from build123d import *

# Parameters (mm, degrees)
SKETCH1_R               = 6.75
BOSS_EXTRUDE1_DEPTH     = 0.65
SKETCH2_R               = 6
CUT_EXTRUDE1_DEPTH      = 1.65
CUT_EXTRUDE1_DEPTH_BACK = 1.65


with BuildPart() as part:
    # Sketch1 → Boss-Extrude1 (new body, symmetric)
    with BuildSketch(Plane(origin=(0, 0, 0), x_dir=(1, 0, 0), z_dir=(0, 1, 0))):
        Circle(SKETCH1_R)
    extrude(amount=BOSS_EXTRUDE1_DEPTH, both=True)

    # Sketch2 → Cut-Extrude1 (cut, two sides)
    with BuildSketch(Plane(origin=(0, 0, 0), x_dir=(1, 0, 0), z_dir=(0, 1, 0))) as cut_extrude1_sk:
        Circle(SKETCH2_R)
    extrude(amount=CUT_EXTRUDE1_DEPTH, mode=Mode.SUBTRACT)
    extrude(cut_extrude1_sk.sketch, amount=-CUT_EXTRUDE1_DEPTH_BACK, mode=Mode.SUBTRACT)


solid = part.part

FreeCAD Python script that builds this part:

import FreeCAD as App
import Part
import Sketcher

doc = App.newDocument("Part")
body = doc.addObject("PartDesign::Body", "Body")

# Sketch on XZ plane
sketch1 = body.newObject("Sketcher::SketchObject", "Sketch")
sketch1.AttachmentSupport = (doc.getObject("XZ_Plane"), [""])
sketch1.MapMode = "FlatFace"
sketch1.addGeometry(Part.Circle(App.Vector(0, 0, 0), App.Vector(0, 0, 1), 7), False)
sketch1.addConstraint([
    Sketcher.Constraint("Coincident", 0, 3, -1, 1),
    Sketcher.Constraint("Diameter", 0, 13.5),
])
pad1 = body.newObject("PartDesign::Pad", "Pad")
pad1.Profile = sketch1
pad1.Length = 1.3
pad1.Midplane = True

# Sketch on XZ plane
sketch2 = body.newObject("Sketcher::SketchObject", "Sketch001")
sketch2.AttachmentSupport = (doc.getObject("XZ_Plane"), [""])
sketch2.MapMode = "FlatFace"
sketch2.addGeometry(Part.Circle(App.Vector(0, 0, 0), App.Vector(0, 0, 1), 6), False)
sketch2.addConstraint([
    Sketcher.Constraint("Coincident", 0, 3, -1, 1),
    Sketcher.Constraint("Diameter", 0, 12.0),
])
pocket1 = body.newObject("PartDesign::Pocket", "Pocket")
pocket1.Profile = sketch2
pocket1.Type = "ThroughAll"
pocket1.Midplane = True

doc.recompute()
